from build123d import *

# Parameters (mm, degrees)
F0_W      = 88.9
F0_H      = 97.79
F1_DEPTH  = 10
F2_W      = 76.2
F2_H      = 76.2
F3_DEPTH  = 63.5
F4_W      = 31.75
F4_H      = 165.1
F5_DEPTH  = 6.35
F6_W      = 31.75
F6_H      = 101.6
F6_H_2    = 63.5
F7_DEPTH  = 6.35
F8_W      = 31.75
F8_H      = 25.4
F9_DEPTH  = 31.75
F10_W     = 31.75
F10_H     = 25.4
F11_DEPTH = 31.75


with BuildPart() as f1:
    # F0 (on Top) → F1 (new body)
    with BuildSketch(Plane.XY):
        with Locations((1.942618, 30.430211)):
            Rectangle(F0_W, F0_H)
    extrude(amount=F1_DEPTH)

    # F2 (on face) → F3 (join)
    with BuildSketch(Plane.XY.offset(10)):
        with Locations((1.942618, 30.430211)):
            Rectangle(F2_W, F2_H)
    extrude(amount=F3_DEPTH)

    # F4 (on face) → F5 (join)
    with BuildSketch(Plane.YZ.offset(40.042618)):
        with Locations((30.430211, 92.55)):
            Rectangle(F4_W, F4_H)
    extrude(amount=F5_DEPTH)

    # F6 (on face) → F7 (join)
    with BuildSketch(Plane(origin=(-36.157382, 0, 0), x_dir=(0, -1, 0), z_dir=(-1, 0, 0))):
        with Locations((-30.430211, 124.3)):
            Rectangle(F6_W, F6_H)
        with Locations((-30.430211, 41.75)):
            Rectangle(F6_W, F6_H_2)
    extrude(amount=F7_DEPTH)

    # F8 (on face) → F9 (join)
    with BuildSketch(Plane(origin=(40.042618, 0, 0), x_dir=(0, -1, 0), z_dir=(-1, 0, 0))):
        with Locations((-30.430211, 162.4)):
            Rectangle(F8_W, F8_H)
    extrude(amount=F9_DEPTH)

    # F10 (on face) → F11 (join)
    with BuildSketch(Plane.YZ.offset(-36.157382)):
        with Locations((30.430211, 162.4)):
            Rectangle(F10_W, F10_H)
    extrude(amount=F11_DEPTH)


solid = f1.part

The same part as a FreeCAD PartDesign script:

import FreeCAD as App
import Part
import Sketcher
from FreeCAD import Vector
Q = App.Units.Quantity

doc = App.newDocument("Part")
body = doc.addObject("PartDesign::Body", "Body")

# Sketch on XY plane
sketch1 = body.newObject("Sketcher::SketchObject", "Sketch")
sketch1.AttachmentSupport = (doc.getObject("XY_Plane"), [""])
sketch1.MapMode = "FlatFace"
sketch1.addGeometry([
    Part.LineSegment(Vector(-43, 79, 0), Vector(-43, -18, 0)),
    Part.LineSegment(Vector(-43, -18, 0), Vector(46, -18, 0)),
    Part.LineSegment(Vector(46, -18, 0), Vector(46, 79, 0)),
    Part.LineSegment(Vector(46, 79, 0), Vector(-43, 79, 0)),
], False)
sketch1.addConstraint([
    Sketcher.Constraint("Coincident", 0, 2, 1, 1),
    Sketcher.Constraint("Coincident", 1, 2, 2, 1),
    Sketcher.Constraint("Coincident", 2, 2, 3, 1),
    Sketcher.Constraint("Coincident", 3, 2, 0, 1),
    Sketcher.Constraint("Vertical", 0),
    Sketcher.Constraint("Horizontal", 1),
    Sketcher.Constraint("Vertical", 2),
    Sketcher.Constraint("Horizontal", 3),
    Sketcher.Constraint("DistanceX", 1, 1, 1, 2, Q("3.5 in")),
    Sketcher.Constraint("DistanceY", 0, 2, 0, 1, Q("3.85 in")),
    Sketcher.Constraint("DistanceY", 0, 2, -1, 1, Q("18.464789 mm")),
    Sketcher.Constraint("DistanceX", 0, 2, -1, 1, Q("42.507382 mm")),
])
pad1 = body.newObject("PartDesign::Pad", "Pad")
pad1.Profile = sketch1
pad1.Length = 10

# Sketch on XY plane
sketch2 = body.newObject("Sketcher::SketchObject", "Sketch001")
sketch2.AttachmentSupport = (doc.getObject("XY_Plane"), [""])
sketch2.MapMode = "FlatFace"
sketch2.AttachmentOffset = App.Placement(Vector(0, 0, 10), App.Rotation())
sketch2.addGeometry([
    Part.LineSegment(Vector(-36, 69, 0), Vector(-36, -8, 0)),
    Part.LineSegment(Vector(-36, -8, 0), Vector(40, -8, 0)),
    Part.LineSegment(Vector(40, -8, 0), Vector(40, 69, 0)),
    Part.LineSegment(Vector(40, 69, 0), Vector(-36, 69, 0)),
], False)
sketch2.addConstraint([
    Sketcher.Constraint("Coincident", 0, 2, 1, 1),
    Sketcher.Constraint("Coincident", 1, 2, 2, 1),
    Sketcher.Constraint("Coincident", 2, 2, 3, 1),
    Sketcher.Constraint("Coincident", 3, 2, 0, 1),
    Sketcher.Constraint("Vertical", 0),
    Sketcher.Constraint("Horizontal", 1),
    Sketcher.Constraint("Vertical", 2),
    Sketcher.Constraint("Horizontal", 3),
    Sketcher.Constraint("Equal", 3, 0),
    Sketcher.Constraint("DistanceX", 1, 1, 1, 2, Q("3 in")),
    Sketcher.Constraint("DistanceX", 0, 2, -1, 1, Q("36.157382 mm")),
    Sketcher.Constraint("DistanceY", 0, 2, -1, 1, Q("7.669789 mm")),
])
pad2 = body.newObject("PartDesign::Pad", "Pad001")
pad2.Profile = sketch2
pad2.Length = Q("2.5 in")

# Sketch on YZ plane
sketch3 = body.newObject("Sketcher::SketchObject", "Sketch002")
sketch3.AttachmentSupport = (doc.getObject("YZ_Plane"), [""])
sketch3.MapMode = "FlatFace"
sketch3.AttachmentOffset = App.Placement(Vector(0, 0, 40.042618), App.Rotation())
sketch3.addGeometry([
    Part.LineSegment(Vector(15, 175, 0), Vector(15, 10, 0)),
    Part.LineSegment(Vector(15, 10, 0), Vector(46, 10, 0)),
    Part.LineSegment(Vector(46, 10, 0), Vector(46, 175, 0)),
    Part.LineSegment(Vector(46, 175, 0), Vector(15, 175, 0)),
], False)
sketch3.addConstraint([
    Sketcher.Constraint("Coincident", 0, 2, 1, 1),
    Sketcher.Constraint("Coincident", 1, 2, 2, 1),
    Sketcher.Constraint("Coincident", 2, 2, 3, 1),
    Sketcher.Constraint("Coincident", 3, 2, 0, 1),
    Sketcher.Constraint("Vertical", 0),
    Sketcher.Constraint("Horizontal", 1),
    Sketcher.Constraint("Vertical", 2),
    Sketcher.Constraint("Horizontal", 3),
    Sketcher.Constraint("DistanceY", 0, 2, 0, 1, Q("6.5 in")),
    Sketcher.Constraint("DistanceX", 1, 1, 1, 2, Q("1.25 in")),
    Sketcher.Constraint("DistanceY", -1, 1, 0, 2, Q("10 mm")),
    Sketcher.Constraint("DistanceX", -1, 1, 0, 2, Q("14.555211 mm")),
])
pad3 = body.newObject("PartDesign::Pad", "Pad002")
pad3.Profile = sketch3
pad3.Length = Q("0.25 in")

# Sketch on YZ plane
sketch4 = body.newObject("Sketcher::SketchObject", "Sketch003")
sketch4.AttachmentSupport = (doc.getObject("YZ_Plane"), [""])
sketch4.MapMode = "FlatFace"
sketch4.AttachmentOffset = App.Placement(Vector(0, 0, -36.157382), App.Rotation())
sketch4.addGeometry([
    Part.LineSegment(Vector(46, 175, 0), Vector(46, 10, 0)),
    Part.LineSegment(Vector(46, 10, 0), Vector(15, 10, 0)),
    Part.LineSegment(Vector(15, 10, 0), Vector(15, 175, 0)),
    Part.LineSegment(Vector(15, 175, 0), Vector(46, 175, 0)),
], False)
sketch4.addConstraint([
    Sketcher.Constraint("Coincident", 0, 2, 1, 1),
    Sketcher.Constraint("Coincident", 1, 2, 2, 1),
    Sketcher.Constraint("Coincident", 2, 2, 3, 1),
    Sketcher.Constraint("Coincident", 3, 2, 0, 1),
    Sketcher.Constraint("Vertical", 0),
    Sketcher.Constraint("Horizontal", 1),
    Sketcher.Constraint("Vertical", 2),
    Sketcher.Constraint("Horizontal", 3),
    Sketcher.Constraint("DistanceY", 0, 2, 0, 1, Q("6.5 in")),
    Sketcher.Constraint("DistanceX", 1, 2, 1, 1, Q("1.25 in")),
    Sketcher.Constraint("DistanceY", -1, 1, 0, 2, Q("10 mm")),
    Sketcher.Constraint("DistanceX", -1, 1, 0, 2, Q("46.305211 mm")),
])
pad4 = body.newObject("PartDesign::Pad", "Pad003")
pad4.Profile = sketch4
pad4.Length = Q("0.25 in")
pad4.Reversed = True

# Sketch on YZ plane
sketch5 = body.newObject("Sketcher::SketchObject", "Sketch004")
sketch5.AttachmentSupport = (doc.getObject("YZ_Plane"), [""])
sketch5.MapMode = "FlatFace"
sketch5.AttachmentOffset = App.Placement(Vector(0, 0, 40.042618), App.Rotation())
sketch5.addGeometry([
    Part.LineSegment(Vector(46, 175, 0), Vector(46, 150, 0)),
    Part.LineSegment(Vector(46, 150, 0), Vector(15, 150, 0)),
    Part.LineSegment(Vector(15, 150, 0), Vector(15, 175, 0)),
    Part.LineSegment(Vector(15, 175, 0), Vector(46, 175, 0)),
], False)
sketch5.addConstraint([
    Sketcher.Constraint("Coincident", 0, 2, 1, 1),
    Sketcher.Constraint("Coincident", 1, 2, 2, 1),
    Sketcher.Constraint("Coincident", 2, 2, 3, 1),
    Sketcher.Constraint("Coincident", 3, 2, 0, 1),
    Sketcher.Constraint("Vertical", 0),
    Sketcher.Constraint("Horizontal", 1),
    Sketcher.Constraint("Vertical", 2),
    Sketcher.Constraint("Horizontal", 3),
    Sketcher.Constraint("DistanceY", 0, 2, 0, 1, Q("1 in")),
    Sketcher.Constraint("DistanceX", 1, 2, 1, 1, Q("1.25 in")),
    Sketcher.Constraint("DistanceY", -1, 1, 0, 2, Q("149.7 mm")),
    Sketcher.Constraint("DistanceX", -1, 1, 0, 2, Q("46.305211 mm")),
])
pad5 = body.newObject("PartDesign::Pad", "Pad004")
pad5.Profile = sketch5
pad5.Length = Q("1.25 in")
pad5.Reversed = True

# Sketch on YZ plane
sketch6 = body.newObject("Sketcher::SketchObject", "Sketch005")
sketch6.AttachmentSupport = (doc.getObject("YZ_Plane"), [""])
sketch6.MapMode = "FlatFace"
sketch6.AttachmentOffset = App.Placement(Vector(0, 0, -36.157382), App.Rotation())
sketch6.addGeometry([
    Part.LineSegment(Vector(15, 175, 0), Vector(15, 150, 0)),
    Part.LineSegment(Vector(15, 150, 0), Vector(46, 150, 0)),
    Part.LineSegment(Vector(46, 150, 0), Vector(46, 175, 0)),
    Part.LineSegment(Vector(46, 175, 0), Vector(15, 175, 0)),
], False)
sketch6.addConstraint([
    Sketcher.Constraint("Coincident", 0, 2, 1, 1),
    Sketcher.Constraint("Coincident", 1, 2, 2, 1),
    Sketcher.Constraint("Coincident", 2, 2, 3, 1),
    Sketcher.Constraint("Coincident", 3, 2, 0, 1),
    Sketcher.Constraint("Vertical", 0),
    Sketcher.Constraint("Horizontal", 1),
    Sketcher.Constraint("Vertical", 2),
    Sketcher.Constraint("Horizontal", 3),
    Sketcher.Constraint("DistanceY", 0, 2, 0, 1, Q("1 in")),
    Sketcher.Constraint("DistanceX", 1, 1, 1, 2, Q("1.25 in")),
    Sketcher.Constraint("DistanceY", -1, 1, 0, 2, Q("149.7 mm")),
    Sketcher.Constraint("DistanceX", -1, 1, 0, 2, Q("14.555211 mm")),
])
pad6 = body.newObject("PartDesign::Pad", "Pad005")
pad6.Profile = sketch6
pad6.Length = Q("1.25 in")

doc.recompute()
